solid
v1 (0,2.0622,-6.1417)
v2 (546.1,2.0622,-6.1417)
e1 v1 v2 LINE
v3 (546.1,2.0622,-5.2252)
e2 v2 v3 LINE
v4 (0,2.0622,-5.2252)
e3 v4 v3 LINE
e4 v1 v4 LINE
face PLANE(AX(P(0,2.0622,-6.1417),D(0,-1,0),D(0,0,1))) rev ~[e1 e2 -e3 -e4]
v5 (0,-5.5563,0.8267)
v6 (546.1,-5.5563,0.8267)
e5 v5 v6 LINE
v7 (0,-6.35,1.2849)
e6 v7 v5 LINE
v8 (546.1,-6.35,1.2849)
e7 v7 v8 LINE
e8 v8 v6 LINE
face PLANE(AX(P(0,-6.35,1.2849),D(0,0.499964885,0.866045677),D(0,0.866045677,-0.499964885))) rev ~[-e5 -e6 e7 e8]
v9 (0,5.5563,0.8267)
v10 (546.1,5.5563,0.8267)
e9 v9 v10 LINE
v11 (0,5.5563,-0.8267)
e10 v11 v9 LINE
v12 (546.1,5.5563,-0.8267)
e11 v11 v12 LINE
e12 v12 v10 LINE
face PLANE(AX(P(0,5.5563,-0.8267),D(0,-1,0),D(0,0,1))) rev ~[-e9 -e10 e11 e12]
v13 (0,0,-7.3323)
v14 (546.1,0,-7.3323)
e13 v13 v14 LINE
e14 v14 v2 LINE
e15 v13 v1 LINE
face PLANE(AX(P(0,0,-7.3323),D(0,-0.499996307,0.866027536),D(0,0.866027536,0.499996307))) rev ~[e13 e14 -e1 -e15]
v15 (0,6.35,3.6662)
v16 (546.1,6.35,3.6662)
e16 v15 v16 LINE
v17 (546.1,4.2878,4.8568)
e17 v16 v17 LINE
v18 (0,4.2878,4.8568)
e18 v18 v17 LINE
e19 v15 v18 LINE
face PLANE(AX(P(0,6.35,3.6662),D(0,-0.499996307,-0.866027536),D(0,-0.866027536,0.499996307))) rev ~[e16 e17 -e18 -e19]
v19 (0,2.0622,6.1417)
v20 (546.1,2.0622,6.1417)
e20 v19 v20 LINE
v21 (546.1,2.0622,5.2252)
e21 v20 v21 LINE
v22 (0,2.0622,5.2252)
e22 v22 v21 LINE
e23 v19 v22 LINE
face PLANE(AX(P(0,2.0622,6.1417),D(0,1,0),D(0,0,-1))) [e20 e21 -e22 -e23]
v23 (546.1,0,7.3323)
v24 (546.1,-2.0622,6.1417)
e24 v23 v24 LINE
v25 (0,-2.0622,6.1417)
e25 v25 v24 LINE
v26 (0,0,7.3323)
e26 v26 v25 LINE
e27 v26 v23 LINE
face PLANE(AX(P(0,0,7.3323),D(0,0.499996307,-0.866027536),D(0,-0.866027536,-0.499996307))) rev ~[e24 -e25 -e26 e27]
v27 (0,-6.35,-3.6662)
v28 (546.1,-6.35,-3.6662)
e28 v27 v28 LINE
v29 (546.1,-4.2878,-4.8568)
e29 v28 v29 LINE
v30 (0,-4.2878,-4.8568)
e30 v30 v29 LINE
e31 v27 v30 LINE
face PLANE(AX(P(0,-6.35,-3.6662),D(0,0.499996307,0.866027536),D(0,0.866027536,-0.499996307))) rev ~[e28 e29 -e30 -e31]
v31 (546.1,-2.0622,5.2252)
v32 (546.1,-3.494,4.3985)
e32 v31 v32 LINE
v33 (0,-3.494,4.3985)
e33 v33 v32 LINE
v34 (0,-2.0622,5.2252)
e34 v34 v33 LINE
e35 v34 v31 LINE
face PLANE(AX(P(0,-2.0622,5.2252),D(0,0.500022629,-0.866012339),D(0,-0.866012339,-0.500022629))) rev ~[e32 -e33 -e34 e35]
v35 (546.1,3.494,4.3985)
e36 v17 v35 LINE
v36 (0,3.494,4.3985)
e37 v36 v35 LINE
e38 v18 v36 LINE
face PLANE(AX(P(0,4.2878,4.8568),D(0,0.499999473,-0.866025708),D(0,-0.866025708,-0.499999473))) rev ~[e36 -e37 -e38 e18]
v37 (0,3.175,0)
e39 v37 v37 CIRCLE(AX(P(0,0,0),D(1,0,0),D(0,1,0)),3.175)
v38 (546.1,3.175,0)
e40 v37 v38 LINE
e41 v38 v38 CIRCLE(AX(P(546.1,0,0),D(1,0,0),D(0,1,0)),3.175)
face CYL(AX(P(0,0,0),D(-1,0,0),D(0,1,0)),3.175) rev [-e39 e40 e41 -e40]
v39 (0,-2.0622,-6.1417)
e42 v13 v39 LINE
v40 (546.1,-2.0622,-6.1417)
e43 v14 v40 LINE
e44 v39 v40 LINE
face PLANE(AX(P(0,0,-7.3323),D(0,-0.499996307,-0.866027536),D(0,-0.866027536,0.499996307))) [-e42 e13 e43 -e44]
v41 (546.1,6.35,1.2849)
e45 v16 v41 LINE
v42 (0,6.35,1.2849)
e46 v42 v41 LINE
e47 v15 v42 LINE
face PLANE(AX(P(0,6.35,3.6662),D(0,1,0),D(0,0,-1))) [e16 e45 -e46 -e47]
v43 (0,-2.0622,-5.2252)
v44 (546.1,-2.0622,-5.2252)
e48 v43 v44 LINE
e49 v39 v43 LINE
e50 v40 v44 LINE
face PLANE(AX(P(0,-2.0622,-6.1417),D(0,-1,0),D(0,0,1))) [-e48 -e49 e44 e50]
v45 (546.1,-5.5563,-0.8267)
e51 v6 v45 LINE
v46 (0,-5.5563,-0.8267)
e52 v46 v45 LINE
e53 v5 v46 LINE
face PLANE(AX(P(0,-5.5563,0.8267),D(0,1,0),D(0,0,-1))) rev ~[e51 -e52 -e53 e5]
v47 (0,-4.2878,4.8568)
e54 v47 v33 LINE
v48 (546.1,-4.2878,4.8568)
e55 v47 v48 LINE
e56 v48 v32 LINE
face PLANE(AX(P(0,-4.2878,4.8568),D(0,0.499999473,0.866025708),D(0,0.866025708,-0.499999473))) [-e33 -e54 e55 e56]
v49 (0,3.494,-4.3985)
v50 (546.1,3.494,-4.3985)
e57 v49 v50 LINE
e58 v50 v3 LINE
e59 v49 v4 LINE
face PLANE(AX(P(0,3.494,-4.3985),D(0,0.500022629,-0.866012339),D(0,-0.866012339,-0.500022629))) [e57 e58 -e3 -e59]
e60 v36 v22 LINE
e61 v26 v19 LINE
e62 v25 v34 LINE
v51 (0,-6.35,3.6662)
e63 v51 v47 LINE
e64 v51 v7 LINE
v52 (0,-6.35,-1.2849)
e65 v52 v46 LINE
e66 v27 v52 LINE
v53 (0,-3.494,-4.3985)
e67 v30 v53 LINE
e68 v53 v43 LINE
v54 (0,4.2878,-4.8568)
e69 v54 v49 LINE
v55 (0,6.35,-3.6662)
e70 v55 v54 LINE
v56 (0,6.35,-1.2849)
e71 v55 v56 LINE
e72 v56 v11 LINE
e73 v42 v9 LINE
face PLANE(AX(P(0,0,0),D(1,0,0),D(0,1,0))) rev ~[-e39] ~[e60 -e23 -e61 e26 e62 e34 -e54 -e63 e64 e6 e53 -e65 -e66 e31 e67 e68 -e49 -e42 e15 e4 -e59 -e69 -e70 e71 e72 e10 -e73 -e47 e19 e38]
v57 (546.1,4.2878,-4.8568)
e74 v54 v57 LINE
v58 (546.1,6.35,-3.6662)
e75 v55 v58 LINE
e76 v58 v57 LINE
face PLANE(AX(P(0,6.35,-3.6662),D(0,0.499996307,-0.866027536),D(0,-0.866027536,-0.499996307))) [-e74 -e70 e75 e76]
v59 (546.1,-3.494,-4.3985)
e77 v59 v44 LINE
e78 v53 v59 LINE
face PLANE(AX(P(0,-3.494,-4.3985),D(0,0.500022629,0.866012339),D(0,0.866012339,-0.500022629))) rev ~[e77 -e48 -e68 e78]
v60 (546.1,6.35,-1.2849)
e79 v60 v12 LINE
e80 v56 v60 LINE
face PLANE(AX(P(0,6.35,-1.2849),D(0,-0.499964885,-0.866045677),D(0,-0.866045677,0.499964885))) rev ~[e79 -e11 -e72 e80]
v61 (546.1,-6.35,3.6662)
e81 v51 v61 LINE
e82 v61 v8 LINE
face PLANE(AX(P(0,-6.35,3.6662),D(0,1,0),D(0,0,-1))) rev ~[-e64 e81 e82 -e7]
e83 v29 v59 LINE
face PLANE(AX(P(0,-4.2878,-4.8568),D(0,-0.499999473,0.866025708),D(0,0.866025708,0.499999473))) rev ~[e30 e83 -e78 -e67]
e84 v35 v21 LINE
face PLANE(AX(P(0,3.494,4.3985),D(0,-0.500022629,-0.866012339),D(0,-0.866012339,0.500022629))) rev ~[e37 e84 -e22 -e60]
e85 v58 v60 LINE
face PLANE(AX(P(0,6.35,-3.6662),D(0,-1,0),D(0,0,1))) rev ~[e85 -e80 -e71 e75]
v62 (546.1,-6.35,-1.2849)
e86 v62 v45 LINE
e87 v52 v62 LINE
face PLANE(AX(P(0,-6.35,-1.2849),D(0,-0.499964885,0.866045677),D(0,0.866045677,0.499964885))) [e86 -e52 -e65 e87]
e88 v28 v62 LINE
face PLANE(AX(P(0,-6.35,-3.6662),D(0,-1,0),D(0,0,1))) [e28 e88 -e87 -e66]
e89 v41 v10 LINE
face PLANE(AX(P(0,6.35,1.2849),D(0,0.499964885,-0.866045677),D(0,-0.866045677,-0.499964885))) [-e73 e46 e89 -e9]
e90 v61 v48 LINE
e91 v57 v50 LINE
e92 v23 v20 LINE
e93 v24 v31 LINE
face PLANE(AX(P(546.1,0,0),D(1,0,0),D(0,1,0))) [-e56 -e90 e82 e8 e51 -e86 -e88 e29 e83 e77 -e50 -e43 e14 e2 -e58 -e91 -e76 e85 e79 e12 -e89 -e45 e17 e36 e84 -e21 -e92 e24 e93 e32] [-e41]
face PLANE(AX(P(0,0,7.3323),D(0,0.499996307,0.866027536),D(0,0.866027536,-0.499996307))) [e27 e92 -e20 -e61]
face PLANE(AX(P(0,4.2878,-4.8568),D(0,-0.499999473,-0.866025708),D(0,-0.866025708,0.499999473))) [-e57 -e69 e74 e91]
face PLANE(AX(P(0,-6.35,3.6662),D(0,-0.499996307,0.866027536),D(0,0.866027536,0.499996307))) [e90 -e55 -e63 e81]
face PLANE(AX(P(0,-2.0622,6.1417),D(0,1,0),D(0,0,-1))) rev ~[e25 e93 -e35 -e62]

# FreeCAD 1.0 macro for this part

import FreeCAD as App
import Part
import Sketcher
from FreeCAD import Vector
Q = App.Units.Quantity


def add_polygon(sketch, points):
    """Adds a closed chain of lines whose ends are joined by coincident constraints."""
    first, n = sketch.GeometryCount, len(points)
    for a, b in zip(points, points[1:] + points[:1]):
        sketch.addGeometry(Part.LineSegment(App.Vector(*a, 0), App.Vector(*b, 0)), False)
    for i in range(n):
        sketch.addConstraint(Sketcher.Constraint("Coincident", first + i, 2, first + (i + 1) % n, 1))

doc = App.newDocument("Part")
body = doc.addObject("PartDesign::Body", "Body")

# Sketch on YZ plane
sketch1 = body.newObject("Sketcher::SketchObject", "Sketch")
sketch1.AttachmentSupport = (doc.getObject("YZ_Plane"), [""])
sketch1.MapMode = "FlatFace"
add_polygon(sketch1, [(6.35, 1.2849), (6.35, 3.6662), (4.2878, 4.8568), (3.494, 4.3985), (2.0622, 5.2252), (2.0622, 6.1417), (0, 7.3323), (-2.0622, 6.1417), (-2.0622, 5.2252), (-3.494, 4.3985), (-4.2878, 4.8568), (-6.35, 3.6662), (-6.35, 1.2849), (-5.5563, 0.8267), (-5.5563, -0.8267), (-6.35, -1.2849), (-6.35, -3.6662), (-4.2878, -4.8568), (-3.494, -4.3985), (-2.0622, -5.2252), (-2.0622, -6.1417), (0, -7.3323), (2.0622, -6.1417), (2.0622, -5.2252), (3.494, -4.3985), (4.2878, -4.8568), (6.35, -3.6662), (6.35, -1.2849), (5.5563, -0.8267), (5.5563, 0.8267)])  # lines 0-29
sketch1.addGeometry(Part.Circle(Vector(0, 0, 0), Vector(0, 0, 1), 3.175), False)  # 30
sketch1.addConstraint([
    Sketcher.Constraint("Vertical", 0),
    Sketcher.Constraint("Vertical", 4),
    Sketcher.Constraint("Vertical", 7),
    Sketcher.Constraint("Vertical", 11),
    Sketcher.Constraint("Vertical", 13),
    Sketcher.Constraint("Vertical", 15),
    Sketcher.Constraint("Vertical", 19),
    Sketcher.Constraint("Vertical", 22),
    Sketcher.Constraint("Vertical", 26),
    Sketcher.Constraint("Vertical", 28),
    Sketcher.Constraint("Coincident", 30, 3, -1, 1),
    Sketcher.Constraint("Symmetric", 0, 2, 15, 2, -1, 1),
    Sketcher.Constraint("Symmetric", 1, 2, 16, 2, -1, 1),
    Sketcher.Constraint("Symmetric", 2, 2, 17, 2, -1, 1),
    Sketcher.Constraint("Symmetric", 3, 2, 18, 2, -1, 1),
    Sketcher.Constraint("Symmetric", 5, 2, 20, 2, -1, 1),
    Sketcher.Constraint("Symmetric", 6, 2, 21, 2, -1, 1),
    Sketcher.Constraint("Symmetric", 8, 2, 23, 2, -1, 1),
    Sketcher.Constraint("Symmetric", 9, 2, 24, 2, -1, 1),
    Sketcher.Constraint("Symmetric", 10, 2, 25, 2, -1, 1),
    Sketcher.Constraint("Symmetric", 12, 2, 27, 2, -1, 1),
    Sketcher.Constraint("Symmetric", 4, 2, 6, 2, -2),
    Sketcher.Constraint("Symmetric", 2, 2, 8, 2, -2),
    Sketcher.Constraint("Symmetric", 1, 2, 9, 2, -2),
    Sketcher.Constraint("Symmetric", 0, 2, 10, 2, -2),
    Sketcher.Constraint("PointOnObject", 5, 2, -2),
    Sketcher.Constraint("Parallel", 1, 3),
    Sketcher.Constraint("Parallel", 3, 5),
    Sketcher.Constraint("Parallel", 2, 6),
    Sketcher.Constraint("Parallel", 6, 8),
    Sketcher.Constraint("Parallel", 9, 12),
    Sketcher.Constraint("Parallel", 10, 14),
    Sketcher.Constraint("Parallel", 18, 20),
    Sketcher.Constraint("Parallel", 21, 23),
    Sketcher.Constraint("Parallel", 24, 27),
    Sketcher.Constraint("Parallel", 25, 29),
    Sketcher.Constraint("Horizontal", 14, 2, 26, 2),
    Sketcher.Constraint("Horizontal", 12, 2, 28, 2),
    Sketcher.Constraint("Equal", 1, 5),
    Sketcher.Constraint("Equal", 9, 12),
    Sketcher.Constraint("Diameter", 30, Q("0.25 in")),
    Sketcher.Constraint("Angle", 1, Q("150.0002 deg")),
    Sketcher.Constraint("DistanceY", 0, 1, 0, 2, Q("0.093752 in")),
    Sketcher.Constraint("DistanceX", -1, 1, 0, 2, Q("0.25 in")),
    Sketcher.Constraint("Distance", 1, Q("0.093748 in")),
    Sketcher.Constraint("DistanceX", 2, 2, 1, 2, Q("0.031252 in")),
    Sketcher.Constraint("DistanceY", 13, 2, 13, 1, Q("0.0651 in")),
    Sketcher.Constraint("DistanceY", 4, 1, 4, 2, 0.9165),
])
pad1 = body.newObject("PartDesign::Pad", "Pad")
pad1.Profile = sketch1
pad1.Length = Q("21.5 in")

doc.recompute()
